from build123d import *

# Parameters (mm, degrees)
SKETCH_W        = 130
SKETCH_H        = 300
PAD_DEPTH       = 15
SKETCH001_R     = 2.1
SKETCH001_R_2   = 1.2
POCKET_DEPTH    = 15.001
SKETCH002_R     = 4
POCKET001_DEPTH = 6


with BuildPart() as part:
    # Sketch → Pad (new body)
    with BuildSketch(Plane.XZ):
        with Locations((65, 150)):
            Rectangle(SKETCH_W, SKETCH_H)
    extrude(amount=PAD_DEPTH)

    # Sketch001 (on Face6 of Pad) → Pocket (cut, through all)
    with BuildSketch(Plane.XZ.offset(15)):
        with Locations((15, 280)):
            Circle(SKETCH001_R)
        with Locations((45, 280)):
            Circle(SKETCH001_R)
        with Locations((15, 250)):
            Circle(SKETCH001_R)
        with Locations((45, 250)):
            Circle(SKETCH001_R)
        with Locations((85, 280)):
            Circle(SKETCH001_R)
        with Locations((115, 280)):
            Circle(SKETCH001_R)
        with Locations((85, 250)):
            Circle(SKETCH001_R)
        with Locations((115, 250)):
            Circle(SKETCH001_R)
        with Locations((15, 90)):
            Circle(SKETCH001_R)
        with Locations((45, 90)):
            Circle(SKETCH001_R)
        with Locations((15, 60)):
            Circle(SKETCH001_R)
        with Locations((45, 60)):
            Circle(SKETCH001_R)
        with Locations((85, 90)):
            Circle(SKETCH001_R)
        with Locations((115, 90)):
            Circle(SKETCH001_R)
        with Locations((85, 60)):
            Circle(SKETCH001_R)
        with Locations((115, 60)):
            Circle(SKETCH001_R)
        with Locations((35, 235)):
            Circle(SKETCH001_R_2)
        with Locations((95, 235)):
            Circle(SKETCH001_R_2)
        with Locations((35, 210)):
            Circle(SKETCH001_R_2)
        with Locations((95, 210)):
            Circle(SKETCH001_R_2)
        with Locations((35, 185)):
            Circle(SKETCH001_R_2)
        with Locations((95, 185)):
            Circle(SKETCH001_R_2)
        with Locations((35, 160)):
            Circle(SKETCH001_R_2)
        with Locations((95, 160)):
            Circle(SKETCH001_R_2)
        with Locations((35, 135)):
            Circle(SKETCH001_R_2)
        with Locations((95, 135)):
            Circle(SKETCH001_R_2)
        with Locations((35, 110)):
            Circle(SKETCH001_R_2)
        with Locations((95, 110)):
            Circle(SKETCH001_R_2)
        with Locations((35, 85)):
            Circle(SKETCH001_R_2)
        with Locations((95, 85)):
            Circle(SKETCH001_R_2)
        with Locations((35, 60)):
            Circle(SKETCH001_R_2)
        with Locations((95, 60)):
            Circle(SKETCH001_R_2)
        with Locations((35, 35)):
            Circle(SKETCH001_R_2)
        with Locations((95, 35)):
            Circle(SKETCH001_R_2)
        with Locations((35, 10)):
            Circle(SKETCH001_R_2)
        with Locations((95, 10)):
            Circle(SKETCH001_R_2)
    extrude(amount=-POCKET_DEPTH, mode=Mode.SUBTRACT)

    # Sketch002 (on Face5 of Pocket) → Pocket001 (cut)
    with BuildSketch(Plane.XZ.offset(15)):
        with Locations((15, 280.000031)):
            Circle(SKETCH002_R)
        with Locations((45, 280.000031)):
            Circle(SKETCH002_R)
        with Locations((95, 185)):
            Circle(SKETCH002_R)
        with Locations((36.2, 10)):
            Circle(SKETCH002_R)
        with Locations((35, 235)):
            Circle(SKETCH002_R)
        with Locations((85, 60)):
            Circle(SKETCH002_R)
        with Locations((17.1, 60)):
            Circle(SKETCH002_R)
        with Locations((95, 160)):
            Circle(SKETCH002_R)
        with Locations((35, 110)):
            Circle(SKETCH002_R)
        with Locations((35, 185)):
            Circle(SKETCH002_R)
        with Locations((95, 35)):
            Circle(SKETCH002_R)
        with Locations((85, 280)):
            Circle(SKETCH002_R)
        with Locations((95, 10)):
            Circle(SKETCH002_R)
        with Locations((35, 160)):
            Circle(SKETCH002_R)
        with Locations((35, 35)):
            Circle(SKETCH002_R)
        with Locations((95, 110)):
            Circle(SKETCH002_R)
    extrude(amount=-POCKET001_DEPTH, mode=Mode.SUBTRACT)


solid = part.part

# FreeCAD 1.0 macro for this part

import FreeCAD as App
import Part
import Sketcher
from FreeCAD import Vector
Q = App.Units.Quantity


def add_polygon(sketch, points):
    """Adds a closed chain of lines whose ends are joined by coincident constraints."""
    first, n = sketch.GeometryCount, len(points)
    for a, b in zip(points, points[1:] + points[:1]):
        sketch.addGeometry(Part.LineSegment(App.Vector(*a, 0), App.Vector(*b, 0)), False)
    for i in range(n):
        sketch.addConstraint(Sketcher.Constraint("Coincident", first + i, 2, first + (i + 1) % n, 1))

doc = App.newDocument("Part")
body = doc.addObject("PartDesign::Body", "Body")

# Sketch on XZ plane
sketch1 = doc.addObject("Sketcher::SketchObject", "Sketch")
body.addObject(sketch1)
sketch1.AttachmentSupport = (doc.XZ_Plane, [""])
sketch1.MapMode = "FlatFace"
add_polygon(sketch1, [(0, 300), (0, 0), (130, 0), (130, 300)])  # lines 0-3
sketch1.addConstraint([
    Sketcher.Constraint("Vertical", 0),
    Sketcher.Constraint("Horizontal", 1),
    Sketcher.Constraint("Vertical", 2),
    Sketcher.Constraint("Horizontal", 3),
    Sketcher.Constraint("Coincident", 0, 2, -1, 1),
    Sketcher.Constraint("DistanceX", 1, 1, 1, 2, Q("130 mm")),
    Sketcher.Constraint("DistanceY", 0, 2, 0, 1, Q("300 mm")),
])
pad1 = doc.addObject("PartDesign::Pad", "Pad")
body.addObject(pad1)
pad1.Profile = sketch1
pad1.Length = 15

# Sketch on XZ plane
sketch2 = doc.addObject("Sketcher::SketchObject", "Sketch001")
body.addObject(sketch2)
sketch2.AttachmentSupport = (doc.XZ_Plane, [""])
sketch2.MapMode = "FlatFace"
sketch2.AttachmentOffset = App.Placement(Vector(0, 0, 15), App.Rotation())
sketch2.addGeometry([
    Part.Circle(Vector(15, 280, 0), Vector(0, 0, 1), 2.1),  # 0
    Part.Circle(Vector(45, 280, 0), Vector(0, 0, 1), 2.1),  # 1
    Part.Circle(Vector(15, 250, 0), Vector(0, 0, 1), 2.1),  # 2
    Part.Circle(Vector(45, 250, 0), Vector(0, 0, 1), 2.1),  # 3
    Part.Circle(Vector(85, 280, 0), Vector(0, 0, 1), 2.1),  # 4
    Part.Circle(Vector(115, 280, 0), Vector(0, 0, 1), 2.1),  # 5
    Part.Circle(Vector(85, 250, 0), Vector(0, 0, 1), 2.1),  # 6
    Part.Circle(Vector(115, 250, 0), Vector(0, 0, 1), 2.1),  # 7
    Part.Circle(Vector(15, 90, 0), Vector(0, 0, 1), 2.1),  # 8
    Part.Circle(Vector(45, 90, 0), Vector(0, 0, 1), 2.1),  # 9
    Part.Circle(Vector(15, 60, 0), Vector(0, 0, 1), 2.1),  # 10
    Part.Circle(Vector(45, 60, 0), Vector(0, 0, 1), 2.1),  # 11
    Part.Circle(Vector(85, 90, 0), Vector(0, 0, 1), 2.1),  # 12
    Part.Circle(Vector(115, 90, 0), Vector(0, 0, 1), 2.1),  # 13
    Part.Circle(Vector(85, 60, 0), Vector(0, 0, 1), 2.1),  # 14
    Part.Circle(Vector(115, 60, 0), Vector(0, 0, 1), 2.1),  # 15
    Part.Circle(Vector(35, 235, 0), Vector(0, 0, 1), 1.2),  # 16
    Part.Circle(Vector(95, 235, 0), Vector(0, 0, 1), 1.2),  # 17
    Part.Circle(Vector(35, 210, 0), Vector(0, 0, 1), 1.2),  # 18
    Part.Circle(Vector(95, 210, 0), Vector(0, 0, 1), 1.2),  # 19
    Part.Circle(Vector(35, 185, 0), Vector(0, 0, 1), 1.2),  # 20
    Part.Circle(Vector(95, 185, 0), Vector(0, 0, 1), 1.2),  # 21
    Part.Circle(Vector(35, 160, 0), Vector(0, 0, 1), 1.2),  # 22
    Part.Circle(Vector(95, 160, 0), Vector(0, 0, 1), 1.2),  # 23
    Part.Circle(Vector(35, 135, 0), Vector(0, 0, 1), 1.2),  # 24
    Part.Circle(Vector(95, 135, 0), Vector(0, 0, 1), 1.2),  # 25
    Part.Circle(Vector(35, 110, 0), Vector(0, 0, 1), 1.2),  # 26
    Part.Circle(Vector(95, 110, 0), Vector(0, 0, 1), 1.2),  # 27
    Part.Circle(Vector(35, 85, 0), Vector(0, 0, 1), 1.2),  # 28
    Part.Circle(Vector(95, 85, 0), Vector(0, 0, 1), 1.2),  # 29
    Part.Circle(Vector(35, 60, 0), Vector(0, 0, 1), 1.2),  # 30
    Part.Circle(Vector(95, 60, 0), Vector(0, 0, 1), 1.2),  # 31
    Part.Circle(Vector(35, 35, 0), Vector(0, 0, 1), 1.2),  # 32
    Part.Circle(Vector(95, 35, 0), Vector(0, 0, 1), 1.2),  # 33
    Part.Circle(Vector(35, 10, 0), Vector(0, 0, 1), 1.2),  # 34
    Part.Circle(Vector(95, 10, 0), Vector(0, 0, 1), 1.2),  # 35
], False)
sketch2.addConstraint([
    Sketcher.Constraint("Equal", 0, 1),
    Sketcher.Constraint("Equal", 1, 2),
    Sketcher.Constraint("Equal", 2, 3),
    Sketcher.Constraint("Equal", 3, 4),
    Sketcher.Constraint("Equal", 4, 5),
    Sketcher.Constraint("Equal", 5, 6),
    Sketcher.Constraint("Equal", 6, 7),
    Sketcher.Constraint("Equal", 7, 8),
    Sketcher.Constraint("Equal", 8, 9),
    Sketcher.Constraint("Equal", 9, 10),
    Sketcher.Constraint("Equal", 10, 11),
    Sketcher.Constraint("Equal", 11, 12),
    Sketcher.Constraint("Equal", 12, 13),
    Sketcher.Constraint("Equal", 13, 14),
    Sketcher.Constraint("Equal", 14, 15),
    Sketcher.Constraint("Equal", 16, 17),
    Sketcher.Constraint("Equal", 17, 18),
    Sketcher.Constraint("Equal", 18, 19),
    Sketcher.Constraint("Equal", 19, 20),
    Sketcher.Constraint("Equal", 20, 21),
    Sketcher.Constraint("Equal", 21, 22),
    Sketcher.Constraint("Equal", 22, 23),
    Sketcher.Constraint("Equal", 23, 24),
    Sketcher.Constraint("Equal", 24, 25),
    Sketcher.Constraint("Equal", 25, 26),
    Sketcher.Constraint("Equal", 26, 27),
    Sketcher.Constraint("Equal", 27, 28),
    Sketcher.Constraint("Equal", 28, 29),
    Sketcher.Constraint("Equal", 29, 30),
    Sketcher.Constraint("Equal", 30, 31),
    Sketcher.Constraint("Equal", 31, 32),
    Sketcher.Constraint("Equal", 32, 33),
    Sketcher.Constraint("Equal", 33, 34),
    Sketcher.Constraint("Equal", 34, 35),
    Sketcher.Constraint("Horizontal", 0, 3, 1, 3),
    Sketcher.Constraint("Horizontal", 2, 3, 3, 3),
    Sketcher.Constraint("Horizontal", 1, 3, 4, 3),
    Sketcher.Constraint("Horizontal", 4, 3, 5, 3),
    Sketcher.Constraint("Horizontal", 3, 3, 6, 3),
    Sketcher.Constraint("Horizontal", 6, 3, 7, 3),
    Sketcher.Constraint("Horizontal", 8, 3, 9, 3),
    Sketcher.Constraint("Horizontal", 10, 3, 11, 3),
    Sketcher.Constraint("Horizontal", 9, 3, 12, 3),
    Sketcher.Constraint("Horizontal", 12, 3, 13, 3),
    Sketcher.Constraint("Horizontal", 11, 3, 14, 3),
    Sketcher.Constraint("Horizontal", 14, 3, 15, 3),
    Sketcher.Constraint("Horizontal", 16, 3, 17, 3),
    Sketcher.Constraint("Horizontal", 18, 3, 19, 3),
    Sketcher.Constraint("Horizontal", 20, 3, 21, 3),
    Sketcher.Constraint("Horizontal", 22, 3, 23, 3),
    Sketcher.Constraint("Horizontal", 24, 3, 25, 3),
    Sketcher.Constraint("Horizontal", 26, 3, 27, 3),
    Sketcher.Constraint("Horizontal", 28, 3, 29, 3),
    Sketcher.Constraint("Horizontal", 15, 3, 30, 3),
    Sketcher.Constraint("Horizontal", 30, 3, 31, 3),
    Sketcher.Constraint("Horizontal", 32, 3, 33, 3),
    Sketcher.Constraint("Horizontal", 34, 3, 35, 3),
    Sketcher.Constraint("Vertical", 0, 3, 2, 3),
    Sketcher.Constraint("Vertical", 1, 3, 3, 3),
    Sketcher.Constraint("Vertical", 4, 3, 6, 3),
    Sketcher.Constraint("Vertical", 5, 3, 7, 3),
    Sketcher.Constraint("Vertical", 2, 3, 8, 3),
    Sketcher.Constraint("Vertical", 3, 3, 9, 3),
    Sketcher.Constraint("Vertical", 8, 3, 10, 3),
    Sketcher.Constraint("Vertical", 9, 3, 11, 3),
    Sketcher.Constraint("Vertical", 6, 3, 12, 3),
    Sketcher.Constraint("Vertical", 7, 3, 13, 3),
    Sketcher.Constraint("Vertical", 12, 3, 14, 3),
    Sketcher.Constraint("Vertical", 13, 3, 15, 3),
    Sketcher.Constraint("Vertical", 16, 3, 18, 3),
    Sketcher.Constraint("Vertical", 17, 3, 19, 3),
    Sketcher.Constraint("Vertical", 18, 3, 20, 3),
    Sketcher.Constraint("Vertical", 19, 3, 21, 3),
    Sketcher.Constraint("Vertical", 20, 3, 22, 3),
    Sketcher.Constraint("Vertical", 21, 3, 23, 3),
    Sketcher.Constraint("Vertical", 22, 3, 24, 3),
    Sketcher.Constraint("Vertical", 23, 3, 25, 3),
    Sketcher.Constraint("Vertical", 24, 3, 26, 3),
    Sketcher.Constraint("Vertical", 25, 3, 27, 3),
    Sketcher.Constraint("Vertical", 26, 3, 28, 3),
    Sketcher.Constraint("Vertical", 27, 3, 29, 3),
    Sketcher.Constraint("Vertical", 28, 3, 30, 3),
    Sketcher.Constraint("Vertical", 29, 3, 31, 3),
    Sketcher.Constraint("Vertical", 30, 3, 32, 3),
    Sketcher.Constraint("Vertical", 31, 3, 33, 3),
    Sketcher.Constraint("Vertical", 32, 3, 34, 3),
    Sketcher.Constraint("Vertical", 33, 3, 35, 3),
    Sketcher.Constraint("Diameter", 0, Q("4.2 mm")),
    Sketcher.Constraint("Diameter", 16, Q("2.4 mm")),
    Sketcher.Constraint("DistanceX", -1, 1, 0, 3, Q("15 mm")),
    Sketcher.Constraint("DistanceY", -1, 1, 0, 3, Q("280 mm")),
    Sketcher.Constraint("DistanceX", -1, 1, 1, 3, Q("45 mm")),
    Sketcher.Constraint("DistanceY", -1, 1, 2, 3, Q("250 mm")),
    Sketcher.Constraint("DistanceX", -1, 1, 4, 3, Q("85 mm")),
    Sketcher.Constraint("DistanceX", -1, 1, 5, 3, Q("115 mm")),
    Sketcher.Constraint("DistanceY", -1, 1, 8, 3, Q("90 mm")),
    Sketcher.Constraint("DistanceY", -1, 1, 10, 3, Q("60 mm")),
    Sketcher.Constraint("DistanceX", -1, 1, 16, 3, Q("35 mm")),
    Sketcher.Constraint("DistanceY", -1, 1, 16, 3, Q("235 mm")),
    Sketcher.Constraint("DistanceX", -1, 1, 17, 3, Q("95 mm")),
    Sketcher.Constraint("DistanceY", -1, 1, 18, 3, Q("210 mm")),
    Sketcher.Constraint("DistanceY", -1, 1, 20, 3, Q("185 mm")),
    Sketcher.Constraint("DistanceY", -1, 1, 22, 3, Q("160 mm")),
    Sketcher.Constraint("DistanceY", -1, 1, 24, 3, Q("135 mm")),
    Sketcher.Constraint("DistanceY", -1, 1, 26, 3, Q("110 mm")),
    Sketcher.Constraint("DistanceY", -1, 1, 28, 3, Q("85 mm")),
    Sketcher.Constraint("DistanceY", -1, 1, 32, 3, Q("35 mm")),
    Sketcher.Constraint("DistanceY", -1, 1, 34, 3, Q("10 mm")),
])
pocket1 = doc.addObject("PartDesign::Pocket", "Pocket")
body.addObject(pocket1)
pocket1.Profile = sketch2
pocket1.Type = "ThroughAll"

# Sketch on XZ plane
sketch3 = doc.addObject("Sketcher::SketchObject", "Sketch002")
body.addObject(sketch3)
sketch3.AttachmentSupport = (doc.XZ_Plane, [""])
sketch3.MapMode = "FlatFace"
sketch3.AttachmentOffset = App.Placement(Vector(0, 0, 15), App.Rotation())
sketch3.addGeometry([
    Part.Circle(Vector(15, 280.000031, 0), Vector(0, 0, 1), 4),  # 0
    Part.Circle(Vector(45, 280.000031, 0), Vector(0, 0, 1), 4),  # 1
    Part.Circle(Vector(95, 185, 0), Vector(0, 0, 1), 4),  # 2
    Part.Circle(Vector(36.2, 10, 0), Vector(0, 0, 1), 4),  # 3
    Part.Circle(Vector(35, 235, 0), Vector(0, 0, 1), 4),  # 4
    Part.Circle(Vector(85, 60, 0), Vector(0, 0, 1), 4),  # 5
    Part.Circle(Vector(17.1, 60, 0), Vector(0, 0, 1), 4),  # 6
    Part.Circle(Vector(95, 160, 0), Vector(0, 0, 1), 4),  # 7
    Part.Circle(Vector(35, 110, 0), Vector(0, 0, 1), 4),  # 8
    Part.Circle(Vector(35, 185, 0), Vector(0, 0, 1), 4),  # 9
    Part.Circle(Vector(95, 35, 0), Vector(0, 0, 1), 4),  # 10
    Part.Circle(Vector(85, 280, 0), Vector(0, 0, 1), 4),  # 11
    Part.Circle(Vector(95, 10, 0), Vector(0, 0, 1), 4),  # 12
    Part.Circle(Vector(35, 160, 0), Vector(0, 0, 1), 4),  # 13
    Part.Circle(Vector(35, 35, 0), Vector(0, 0, 1), 4),  # 14
    Part.Circle(Vector(95, 110, 0), Vector(0, 0, 1), 4),  # 15
], False)
sketch3.addConstraint([
    Sketcher.Constraint("Equal", 0, 1),
    Sketcher.Constraint("Equal", 1, 2),
    Sketcher.Constraint("Equal", 2, 3),
    Sketcher.Constraint("Equal", 3, 4),
    Sketcher.Constraint("Equal", 4, 5),
    Sketcher.Constraint("Equal", 5, 6),
    Sketcher.Constraint("Equal", 6, 7),
    Sketcher.Constraint("Equal", 7, 8),
    Sketcher.Constraint("Equal", 8, 9),
    Sketcher.Constraint("Equal", 9, 10),
    Sketcher.Constraint("Equal", 10, 11),
    Sketcher.Constraint("Equal", 11, 12),
    Sketcher.Constraint("Equal", 12, 13),
    Sketcher.Constraint("Equal", 13, 14),
    Sketcher.Constraint("Equal", 14, 15),
    Sketcher.Constraint("Horizontal", 0, 3, 1, 3),
    Sketcher.Constraint("Horizontal", 5, 3, 6, 3),
    Sketcher.Constraint("Horizontal", 2, 3, 9, 3),
    Sketcher.Constraint("Horizontal", 3, 3, 12, 3),
    Sketcher.Constraint("Horizontal", 7, 3, 13, 3),
    Sketcher.Constraint("Horizontal", 10, 3, 14, 3),
    Sketcher.Constraint("Horizontal", 8, 3, 15, 3),
    Sketcher.Constraint("Vertical", 2, 3, 7, 3),
    Sketcher.Constraint("Vertical", 4, 3, 8, 3),
    Sketcher.Constraint("Vertical", 8, 3, 9, 3),
    Sketcher.Constraint("Vertical", 7, 3, 10, 3),
    Sketcher.Constraint("Vertical", 5, 3, 11, 3),
    Sketcher.Constraint("Vertical", 10, 3, 12, 3),
    Sketcher.Constraint("Vertical", 9, 3, 13, 3),
    Sketcher.Constraint("Vertical", 13, 3, 14, 3),
    Sketcher.Constraint("Vertical", 12, 3, 15, 3),
    Sketcher.Constraint("Diameter", 0, Q("8 mm")),
    Sketcher.Constraint("DistanceX", -1, 1, 0, 3, Q("15 mm")),
    Sketcher.Constraint("DistanceX", -1, 1, 1, 3, Q("45 mm")),
    Sketcher.Constraint("DistanceX", -1, 1, 2, 3, Q("95 mm")),
    Sketcher.Constraint("DistanceY", -1, 1, 2, 3, Q("185 mm")),
    Sketcher.Constraint("DistanceY", -1, 1, 3, 3, Q("10 mm")),
    Sketcher.Constraint("DistanceX", -1, 1, 4, 3, Q("35 mm")),
    Sketcher.Constraint("DistanceY", -1, 1, 4, 3, Q("235 mm")),
    Sketcher.Constraint("DistanceX", -1, 1, 5, 3, Q("85 mm")),
    Sketcher.Constraint("DistanceY", -1, 1, 5, 3, Q("60 mm")),
    Sketcher.Constraint("DistanceY", -1, 1, 7, 3, Q("160 mm")),
    Sketcher.Constraint("DistanceY", -1, 1, 8, 3, Q("110 mm")),
    Sketcher.Constraint("DistanceY", -1, 1, 10, 3, Q("35 mm")),
    Sketcher.Constraint("DistanceY", -1, 1, 11, 3, Q("280 mm")),
    Sketcher.Constraint("DistanceX", -1, 1, 3, 3, Q("36.2 mm")),
    Sketcher.Constraint("DistanceX", -1, 1, 6, 3, Q("17.1 mm")),
    Sketcher.Constraint("DistanceY", -1, 1, 0, 3, Q("280.000031 mm")),
])
pocket2 = doc.addObject("PartDesign::Pocket", "Pocket001")
body.addObject(pocket2)
pocket2.Profile = sketch3
pocket2.Length = 6

doc.recompute()
